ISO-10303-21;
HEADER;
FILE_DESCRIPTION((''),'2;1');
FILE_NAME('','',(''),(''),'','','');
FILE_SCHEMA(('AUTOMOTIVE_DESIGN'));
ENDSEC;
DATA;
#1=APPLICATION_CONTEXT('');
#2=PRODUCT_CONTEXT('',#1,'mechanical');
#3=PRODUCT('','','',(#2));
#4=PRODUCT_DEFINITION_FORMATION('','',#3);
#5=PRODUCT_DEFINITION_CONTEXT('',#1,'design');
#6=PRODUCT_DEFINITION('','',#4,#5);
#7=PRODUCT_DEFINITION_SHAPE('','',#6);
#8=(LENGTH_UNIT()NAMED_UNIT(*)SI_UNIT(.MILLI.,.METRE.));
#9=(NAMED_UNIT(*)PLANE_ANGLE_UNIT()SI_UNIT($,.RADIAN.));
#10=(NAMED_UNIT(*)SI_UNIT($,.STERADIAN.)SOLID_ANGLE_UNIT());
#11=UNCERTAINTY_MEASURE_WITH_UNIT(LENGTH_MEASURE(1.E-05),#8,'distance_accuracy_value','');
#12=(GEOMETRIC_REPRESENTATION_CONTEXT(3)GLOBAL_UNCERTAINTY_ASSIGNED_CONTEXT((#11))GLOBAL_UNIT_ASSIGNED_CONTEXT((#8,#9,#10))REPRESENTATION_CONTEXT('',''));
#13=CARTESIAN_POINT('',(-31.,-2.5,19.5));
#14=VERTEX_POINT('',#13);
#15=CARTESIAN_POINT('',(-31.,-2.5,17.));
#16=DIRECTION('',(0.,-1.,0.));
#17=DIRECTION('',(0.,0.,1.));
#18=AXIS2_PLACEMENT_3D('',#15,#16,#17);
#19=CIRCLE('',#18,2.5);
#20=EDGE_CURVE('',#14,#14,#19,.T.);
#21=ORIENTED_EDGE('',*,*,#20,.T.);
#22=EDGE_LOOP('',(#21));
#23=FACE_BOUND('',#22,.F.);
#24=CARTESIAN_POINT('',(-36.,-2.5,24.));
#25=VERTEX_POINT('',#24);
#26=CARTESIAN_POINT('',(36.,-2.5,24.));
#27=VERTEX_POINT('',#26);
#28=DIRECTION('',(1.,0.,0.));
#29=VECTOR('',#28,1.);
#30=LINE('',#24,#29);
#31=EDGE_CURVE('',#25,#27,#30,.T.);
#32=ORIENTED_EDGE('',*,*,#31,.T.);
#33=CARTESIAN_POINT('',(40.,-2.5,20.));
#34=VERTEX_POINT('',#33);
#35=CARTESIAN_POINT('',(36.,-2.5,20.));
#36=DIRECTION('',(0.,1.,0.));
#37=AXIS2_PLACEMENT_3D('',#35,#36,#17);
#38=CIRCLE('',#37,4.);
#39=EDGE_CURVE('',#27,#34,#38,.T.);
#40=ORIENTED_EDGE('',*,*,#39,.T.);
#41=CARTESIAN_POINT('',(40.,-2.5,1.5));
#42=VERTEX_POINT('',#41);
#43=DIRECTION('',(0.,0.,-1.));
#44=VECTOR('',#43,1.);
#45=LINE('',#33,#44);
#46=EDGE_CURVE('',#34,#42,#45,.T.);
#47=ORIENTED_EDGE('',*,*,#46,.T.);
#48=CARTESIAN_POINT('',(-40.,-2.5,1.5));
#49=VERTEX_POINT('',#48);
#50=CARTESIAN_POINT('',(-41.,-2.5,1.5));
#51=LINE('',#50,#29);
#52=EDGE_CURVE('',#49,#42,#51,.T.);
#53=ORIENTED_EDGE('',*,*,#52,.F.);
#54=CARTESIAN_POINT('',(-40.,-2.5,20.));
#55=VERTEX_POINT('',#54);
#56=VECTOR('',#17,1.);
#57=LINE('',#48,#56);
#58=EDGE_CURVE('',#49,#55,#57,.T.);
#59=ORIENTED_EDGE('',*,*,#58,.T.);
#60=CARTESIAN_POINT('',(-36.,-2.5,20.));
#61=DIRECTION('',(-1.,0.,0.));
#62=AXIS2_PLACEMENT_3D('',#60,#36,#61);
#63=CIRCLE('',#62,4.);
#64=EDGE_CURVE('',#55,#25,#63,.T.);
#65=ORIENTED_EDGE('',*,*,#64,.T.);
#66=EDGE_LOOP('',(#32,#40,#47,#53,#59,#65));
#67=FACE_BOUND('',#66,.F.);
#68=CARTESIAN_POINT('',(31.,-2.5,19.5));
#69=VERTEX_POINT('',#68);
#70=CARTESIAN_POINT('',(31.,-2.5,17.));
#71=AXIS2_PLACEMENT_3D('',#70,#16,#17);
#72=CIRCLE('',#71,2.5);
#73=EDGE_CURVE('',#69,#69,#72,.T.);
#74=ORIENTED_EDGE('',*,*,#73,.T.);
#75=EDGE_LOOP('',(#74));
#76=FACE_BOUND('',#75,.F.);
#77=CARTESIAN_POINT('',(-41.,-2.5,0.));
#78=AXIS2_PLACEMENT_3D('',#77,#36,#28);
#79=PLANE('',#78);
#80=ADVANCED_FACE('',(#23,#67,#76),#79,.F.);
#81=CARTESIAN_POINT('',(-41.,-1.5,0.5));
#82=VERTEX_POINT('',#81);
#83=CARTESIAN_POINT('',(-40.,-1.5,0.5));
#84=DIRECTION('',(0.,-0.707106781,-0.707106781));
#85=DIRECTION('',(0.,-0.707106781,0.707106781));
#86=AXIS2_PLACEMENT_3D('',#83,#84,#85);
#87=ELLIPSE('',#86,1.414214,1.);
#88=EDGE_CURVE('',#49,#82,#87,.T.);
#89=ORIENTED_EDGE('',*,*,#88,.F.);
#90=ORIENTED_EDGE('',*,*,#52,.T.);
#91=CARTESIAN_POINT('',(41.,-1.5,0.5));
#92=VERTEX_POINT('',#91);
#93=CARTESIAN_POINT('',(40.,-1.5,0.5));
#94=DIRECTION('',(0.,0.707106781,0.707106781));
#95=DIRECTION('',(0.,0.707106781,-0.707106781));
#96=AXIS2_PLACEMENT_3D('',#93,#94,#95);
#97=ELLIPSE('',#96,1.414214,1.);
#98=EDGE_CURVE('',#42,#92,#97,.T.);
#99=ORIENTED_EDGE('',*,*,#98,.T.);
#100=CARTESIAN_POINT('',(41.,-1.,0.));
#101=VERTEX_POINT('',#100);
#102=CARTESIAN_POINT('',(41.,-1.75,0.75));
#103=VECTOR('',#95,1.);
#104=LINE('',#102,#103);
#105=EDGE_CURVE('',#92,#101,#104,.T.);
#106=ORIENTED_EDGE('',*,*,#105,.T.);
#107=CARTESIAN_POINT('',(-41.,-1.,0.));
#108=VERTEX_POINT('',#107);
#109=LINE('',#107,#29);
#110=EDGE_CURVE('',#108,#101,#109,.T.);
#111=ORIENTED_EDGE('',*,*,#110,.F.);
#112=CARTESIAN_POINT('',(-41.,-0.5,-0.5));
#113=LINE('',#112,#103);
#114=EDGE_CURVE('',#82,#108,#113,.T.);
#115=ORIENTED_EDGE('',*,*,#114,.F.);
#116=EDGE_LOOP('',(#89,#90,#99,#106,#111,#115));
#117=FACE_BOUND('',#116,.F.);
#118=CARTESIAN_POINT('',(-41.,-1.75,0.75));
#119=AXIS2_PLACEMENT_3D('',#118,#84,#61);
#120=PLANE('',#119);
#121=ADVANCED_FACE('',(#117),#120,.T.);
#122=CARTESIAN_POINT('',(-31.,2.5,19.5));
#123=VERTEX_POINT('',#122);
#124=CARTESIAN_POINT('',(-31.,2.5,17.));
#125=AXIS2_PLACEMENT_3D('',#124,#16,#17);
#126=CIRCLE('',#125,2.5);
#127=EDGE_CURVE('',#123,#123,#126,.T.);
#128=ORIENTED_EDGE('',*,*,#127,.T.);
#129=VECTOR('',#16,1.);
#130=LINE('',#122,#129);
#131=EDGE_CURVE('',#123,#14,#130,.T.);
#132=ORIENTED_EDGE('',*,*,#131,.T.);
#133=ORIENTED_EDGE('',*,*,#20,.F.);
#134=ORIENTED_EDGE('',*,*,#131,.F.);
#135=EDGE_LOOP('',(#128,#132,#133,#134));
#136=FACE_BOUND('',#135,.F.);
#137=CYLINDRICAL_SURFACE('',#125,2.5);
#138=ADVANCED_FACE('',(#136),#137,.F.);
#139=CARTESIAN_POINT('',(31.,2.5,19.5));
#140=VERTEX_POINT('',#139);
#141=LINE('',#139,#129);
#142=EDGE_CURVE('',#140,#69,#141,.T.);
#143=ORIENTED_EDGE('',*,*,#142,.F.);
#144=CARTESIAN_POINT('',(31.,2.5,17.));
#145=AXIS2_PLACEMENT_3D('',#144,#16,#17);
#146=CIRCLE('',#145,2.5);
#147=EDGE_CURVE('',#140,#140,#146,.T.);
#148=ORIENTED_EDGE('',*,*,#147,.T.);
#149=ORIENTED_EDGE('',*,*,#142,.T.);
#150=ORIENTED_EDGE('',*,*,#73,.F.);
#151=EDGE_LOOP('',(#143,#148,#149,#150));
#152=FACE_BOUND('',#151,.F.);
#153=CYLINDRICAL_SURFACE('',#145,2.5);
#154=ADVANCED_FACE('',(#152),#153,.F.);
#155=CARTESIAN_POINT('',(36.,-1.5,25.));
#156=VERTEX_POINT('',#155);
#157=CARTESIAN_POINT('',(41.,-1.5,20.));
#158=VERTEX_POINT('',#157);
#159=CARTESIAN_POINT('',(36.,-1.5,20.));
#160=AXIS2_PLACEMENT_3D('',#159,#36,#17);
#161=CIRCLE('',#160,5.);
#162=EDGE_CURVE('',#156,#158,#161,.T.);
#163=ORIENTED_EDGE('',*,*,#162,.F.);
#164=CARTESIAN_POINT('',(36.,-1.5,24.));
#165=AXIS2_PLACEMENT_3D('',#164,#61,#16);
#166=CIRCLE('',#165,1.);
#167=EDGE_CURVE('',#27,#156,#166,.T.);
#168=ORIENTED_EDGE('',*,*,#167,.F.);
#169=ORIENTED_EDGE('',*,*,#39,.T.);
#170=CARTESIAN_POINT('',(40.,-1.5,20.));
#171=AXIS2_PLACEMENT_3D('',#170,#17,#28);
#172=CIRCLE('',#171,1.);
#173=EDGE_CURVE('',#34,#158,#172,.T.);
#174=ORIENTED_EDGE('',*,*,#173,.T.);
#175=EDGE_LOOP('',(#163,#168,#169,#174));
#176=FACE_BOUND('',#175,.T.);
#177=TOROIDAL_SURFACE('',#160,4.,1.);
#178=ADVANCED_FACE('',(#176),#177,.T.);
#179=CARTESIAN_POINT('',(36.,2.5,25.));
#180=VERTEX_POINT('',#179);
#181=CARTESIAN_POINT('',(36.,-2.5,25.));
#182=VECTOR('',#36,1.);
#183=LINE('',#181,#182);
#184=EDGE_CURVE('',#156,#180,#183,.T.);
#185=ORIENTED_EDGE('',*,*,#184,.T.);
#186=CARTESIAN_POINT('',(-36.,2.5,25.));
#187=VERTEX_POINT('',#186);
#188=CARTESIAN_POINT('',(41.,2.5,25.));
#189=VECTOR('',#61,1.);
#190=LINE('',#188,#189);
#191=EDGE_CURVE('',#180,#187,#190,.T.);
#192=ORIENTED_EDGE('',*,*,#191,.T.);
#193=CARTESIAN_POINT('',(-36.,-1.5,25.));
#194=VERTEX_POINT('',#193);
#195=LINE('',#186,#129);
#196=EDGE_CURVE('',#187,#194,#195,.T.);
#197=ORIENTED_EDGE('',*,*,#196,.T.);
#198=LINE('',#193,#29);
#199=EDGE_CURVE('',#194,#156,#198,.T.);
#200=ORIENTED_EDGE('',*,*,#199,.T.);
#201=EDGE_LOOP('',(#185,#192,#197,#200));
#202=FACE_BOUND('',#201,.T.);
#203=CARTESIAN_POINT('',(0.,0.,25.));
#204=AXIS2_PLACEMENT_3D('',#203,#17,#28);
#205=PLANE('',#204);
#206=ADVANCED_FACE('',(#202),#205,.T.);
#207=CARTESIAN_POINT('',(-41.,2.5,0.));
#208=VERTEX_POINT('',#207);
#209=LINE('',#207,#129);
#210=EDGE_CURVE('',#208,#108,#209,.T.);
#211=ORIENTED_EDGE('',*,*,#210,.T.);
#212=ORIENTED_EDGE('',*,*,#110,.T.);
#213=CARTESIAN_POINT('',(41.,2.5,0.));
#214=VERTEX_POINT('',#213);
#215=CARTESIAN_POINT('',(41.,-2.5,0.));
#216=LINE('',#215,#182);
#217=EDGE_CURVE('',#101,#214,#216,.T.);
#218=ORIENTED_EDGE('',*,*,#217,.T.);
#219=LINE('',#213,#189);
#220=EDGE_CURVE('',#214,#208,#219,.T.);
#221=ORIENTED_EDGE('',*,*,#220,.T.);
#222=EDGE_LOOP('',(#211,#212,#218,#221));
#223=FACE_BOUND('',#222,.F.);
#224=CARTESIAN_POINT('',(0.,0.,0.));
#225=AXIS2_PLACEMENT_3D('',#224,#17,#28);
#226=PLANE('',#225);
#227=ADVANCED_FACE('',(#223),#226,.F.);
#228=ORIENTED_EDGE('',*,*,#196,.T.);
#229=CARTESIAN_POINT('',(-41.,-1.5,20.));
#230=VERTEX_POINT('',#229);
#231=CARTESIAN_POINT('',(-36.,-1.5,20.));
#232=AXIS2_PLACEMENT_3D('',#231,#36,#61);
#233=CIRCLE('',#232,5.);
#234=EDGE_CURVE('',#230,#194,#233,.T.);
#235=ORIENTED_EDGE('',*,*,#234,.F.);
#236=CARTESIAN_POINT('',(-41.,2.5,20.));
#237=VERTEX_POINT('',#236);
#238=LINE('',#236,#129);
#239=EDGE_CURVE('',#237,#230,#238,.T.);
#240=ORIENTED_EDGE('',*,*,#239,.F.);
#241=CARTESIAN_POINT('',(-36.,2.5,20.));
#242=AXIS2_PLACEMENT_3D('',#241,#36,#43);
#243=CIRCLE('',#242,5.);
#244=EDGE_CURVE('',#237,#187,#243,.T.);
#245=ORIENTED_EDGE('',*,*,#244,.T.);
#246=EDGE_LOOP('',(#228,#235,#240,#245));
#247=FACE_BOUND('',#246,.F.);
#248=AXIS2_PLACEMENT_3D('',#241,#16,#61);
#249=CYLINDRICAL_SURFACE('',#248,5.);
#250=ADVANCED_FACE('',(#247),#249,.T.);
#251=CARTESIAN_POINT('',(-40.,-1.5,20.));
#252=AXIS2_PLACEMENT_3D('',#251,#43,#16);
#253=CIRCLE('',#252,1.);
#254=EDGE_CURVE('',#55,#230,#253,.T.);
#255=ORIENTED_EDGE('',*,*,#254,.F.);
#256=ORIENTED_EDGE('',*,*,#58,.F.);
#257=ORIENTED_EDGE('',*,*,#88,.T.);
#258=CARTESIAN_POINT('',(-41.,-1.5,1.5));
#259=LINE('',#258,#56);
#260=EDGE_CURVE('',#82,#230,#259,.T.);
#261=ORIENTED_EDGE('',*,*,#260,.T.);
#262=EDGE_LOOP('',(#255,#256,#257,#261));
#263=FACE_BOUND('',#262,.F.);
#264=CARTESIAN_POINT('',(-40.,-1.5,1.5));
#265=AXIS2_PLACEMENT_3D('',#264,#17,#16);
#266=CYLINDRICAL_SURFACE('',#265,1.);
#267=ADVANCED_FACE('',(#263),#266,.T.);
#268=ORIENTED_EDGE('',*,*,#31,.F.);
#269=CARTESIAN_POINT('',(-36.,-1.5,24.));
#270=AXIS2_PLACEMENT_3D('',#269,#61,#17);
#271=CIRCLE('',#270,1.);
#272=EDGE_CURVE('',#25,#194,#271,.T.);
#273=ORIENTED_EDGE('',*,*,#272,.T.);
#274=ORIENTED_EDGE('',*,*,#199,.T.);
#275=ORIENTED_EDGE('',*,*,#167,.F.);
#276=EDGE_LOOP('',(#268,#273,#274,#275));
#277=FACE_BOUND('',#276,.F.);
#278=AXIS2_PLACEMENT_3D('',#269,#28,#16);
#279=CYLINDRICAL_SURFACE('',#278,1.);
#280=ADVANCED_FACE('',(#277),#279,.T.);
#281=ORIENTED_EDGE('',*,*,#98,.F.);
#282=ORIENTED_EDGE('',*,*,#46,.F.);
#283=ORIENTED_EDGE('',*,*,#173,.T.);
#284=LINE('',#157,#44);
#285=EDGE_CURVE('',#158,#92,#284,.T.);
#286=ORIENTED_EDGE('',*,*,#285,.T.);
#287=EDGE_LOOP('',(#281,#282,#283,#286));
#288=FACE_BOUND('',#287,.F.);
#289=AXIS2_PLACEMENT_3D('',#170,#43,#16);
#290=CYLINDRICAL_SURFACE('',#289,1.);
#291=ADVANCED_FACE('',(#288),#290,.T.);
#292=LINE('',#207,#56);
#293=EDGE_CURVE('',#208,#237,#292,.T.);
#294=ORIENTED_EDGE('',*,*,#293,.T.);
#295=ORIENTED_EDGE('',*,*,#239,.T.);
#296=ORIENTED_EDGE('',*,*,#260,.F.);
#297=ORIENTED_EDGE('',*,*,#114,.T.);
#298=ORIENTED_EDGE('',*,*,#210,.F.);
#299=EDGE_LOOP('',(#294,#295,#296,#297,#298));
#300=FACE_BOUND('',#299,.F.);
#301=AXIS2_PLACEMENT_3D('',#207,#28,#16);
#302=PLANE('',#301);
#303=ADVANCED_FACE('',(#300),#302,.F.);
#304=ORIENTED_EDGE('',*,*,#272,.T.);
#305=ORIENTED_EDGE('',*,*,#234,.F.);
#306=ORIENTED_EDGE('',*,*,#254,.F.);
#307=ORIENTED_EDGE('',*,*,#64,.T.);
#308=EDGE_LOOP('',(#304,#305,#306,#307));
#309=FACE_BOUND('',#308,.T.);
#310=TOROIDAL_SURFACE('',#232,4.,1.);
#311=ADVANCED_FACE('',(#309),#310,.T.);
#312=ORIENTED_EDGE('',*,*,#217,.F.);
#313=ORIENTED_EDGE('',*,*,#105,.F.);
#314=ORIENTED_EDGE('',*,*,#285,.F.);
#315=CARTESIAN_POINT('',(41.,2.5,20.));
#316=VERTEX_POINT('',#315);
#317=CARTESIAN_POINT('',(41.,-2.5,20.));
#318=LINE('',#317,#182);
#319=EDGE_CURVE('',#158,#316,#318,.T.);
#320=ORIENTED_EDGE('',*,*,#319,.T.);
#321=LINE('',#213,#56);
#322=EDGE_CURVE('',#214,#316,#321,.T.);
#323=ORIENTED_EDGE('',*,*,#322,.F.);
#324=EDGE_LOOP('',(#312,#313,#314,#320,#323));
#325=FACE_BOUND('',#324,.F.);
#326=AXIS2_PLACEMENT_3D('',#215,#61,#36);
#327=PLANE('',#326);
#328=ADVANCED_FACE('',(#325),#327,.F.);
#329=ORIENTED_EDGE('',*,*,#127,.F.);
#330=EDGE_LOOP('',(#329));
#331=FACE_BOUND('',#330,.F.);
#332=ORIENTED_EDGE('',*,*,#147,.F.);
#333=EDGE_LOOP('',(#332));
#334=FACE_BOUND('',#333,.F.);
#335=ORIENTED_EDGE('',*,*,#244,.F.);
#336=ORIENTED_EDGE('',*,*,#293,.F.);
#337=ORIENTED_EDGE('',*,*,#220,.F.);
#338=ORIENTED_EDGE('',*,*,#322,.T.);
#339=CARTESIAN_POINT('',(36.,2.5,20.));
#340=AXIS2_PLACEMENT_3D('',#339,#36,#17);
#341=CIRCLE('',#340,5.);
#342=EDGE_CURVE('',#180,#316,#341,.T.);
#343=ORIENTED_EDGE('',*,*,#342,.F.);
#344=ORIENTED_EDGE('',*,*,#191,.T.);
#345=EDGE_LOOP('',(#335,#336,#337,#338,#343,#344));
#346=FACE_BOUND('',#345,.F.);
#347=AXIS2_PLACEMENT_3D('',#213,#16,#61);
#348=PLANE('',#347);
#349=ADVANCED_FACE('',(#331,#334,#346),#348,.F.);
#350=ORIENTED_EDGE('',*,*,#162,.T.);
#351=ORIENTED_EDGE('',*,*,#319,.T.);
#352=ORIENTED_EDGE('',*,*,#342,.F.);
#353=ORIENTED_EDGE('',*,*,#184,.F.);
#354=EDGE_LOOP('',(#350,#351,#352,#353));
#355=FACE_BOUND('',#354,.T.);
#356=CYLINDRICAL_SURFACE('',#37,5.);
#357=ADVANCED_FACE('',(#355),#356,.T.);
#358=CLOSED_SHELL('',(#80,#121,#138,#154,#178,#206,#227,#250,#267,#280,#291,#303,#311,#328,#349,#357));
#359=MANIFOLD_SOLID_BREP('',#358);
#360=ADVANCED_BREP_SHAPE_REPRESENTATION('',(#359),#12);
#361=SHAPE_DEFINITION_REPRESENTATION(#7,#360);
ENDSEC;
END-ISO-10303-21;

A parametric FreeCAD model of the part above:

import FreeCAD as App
import Part
import Sketcher

V = App.Vector
Q = App.Units.Quantity


def edges_at(feature, points):
    """Names of the edges that pass closest to the given points."""
    edges = feature.Shape.Edges
    near = lambda p: min(range(len(edges)), key=lambda i: edges[i].distToShape(Part.Vertex(*p))[0])
    return sorted({f"Edge{near(p) + 1}" for p in points})

doc = App.newDocument("Part")
body = doc.addObject("PartDesign::Body", "Body")

sketch1 = body.newObject("Sketcher::SketchObject", "Sketch")
sketch1.AttachmentSupport = (doc.getObject("XY_Plane"), [""])
sketch1.MapMode = "FlatFace"
sketch1.addGeometry(Part.LineSegment(V(-41, 2, 0), V(-41, -2, 0)), False)
sketch1.addGeometry(Part.LineSegment(V(-41, -2, 0), V(41, -2, 0)), False)
sketch1.addGeometry(Part.LineSegment(V(41, -2, 0), V(41, 2, 0)), False)
sketch1.addGeometry(Part.LineSegment(V(41, 2, 0), V(-41, 2, 0)), False)
sketch1.addConstraint(Sketcher.Constraint("Coincident", 0, 2, 1, 1))
sketch1.addConstraint(Sketcher.Constraint("Coincident", 1, 2, 2, 1))
sketch1.addConstraint(Sketcher.Constraint("Coincident", 2, 2, 3, 1))
sketch1.addConstraint(Sketcher.Constraint("Coincident", 3, 2, 0, 1))
sketch1.addConstraint(Sketcher.Constraint("Vertical", 0))
sketch1.addConstraint(Sketcher.Constraint("Horizontal", 1))
sketch1.addConstraint(Sketcher.Constraint("Vertical", 2))
sketch1.addConstraint(Sketcher.Constraint("Horizontal", 3))
sketch1.addConstraint(Sketcher.Constraint("Symmetric", 0, 2, 2, 2, -1, 1))
sketch1.addConstraint(Sketcher.Constraint("DistanceX", 1, 1, 1, 2, Q("82 mm")))
sketch1.addConstraint(Sketcher.Constraint("DistanceY", 0, 2, 0, 1, Q("5 mm")))
pad1 = body.newObject("PartDesign::Pad", "Pad")
pad1.Profile = sketch1
pad1.Length = 25
doc.recompute()

chamfer = body.newObject("PartDesign::Chamfer", "Chamfer")
chamfer.Base = (pad1, edges_at(pad1, [(0, -2.5, 0)]))
chamfer.Size = 1.5
doc.recompute()

fillet = body.newObject("PartDesign::Fillet", "Fillet")
fillet.Base = (chamfer, edges_at(chamfer, [(-41, 0, 25), (41, 0, 25)]))
fillet.Radius = 5

sketch2 = body.newObject("Sketcher::SketchObject", "Sketch001")
sketch2.AttachmentSupport = (doc.getObject("XZ_Plane"), [""])
sketch2.MapMode = "FlatFace"
sketch2.AttachmentOffset = App.Placement(V(0, 0, -2.5), App.Rotation())
sketch2.addGeometry(Part.Circle(V(-31, 17, 0), V(0, 0, 1), 2.5), False)
sketch2.addGeometry(Part.Circle(V(31, 17, 0), V(0, 0, 1), 2.5), False)
sketch2.addConstraint(Sketcher.Constraint("Equal", 0, 1))
sketch2.addConstraint(Sketcher.Constraint("Symmetric", 0, 3, 1, 3, -2))
sketch2.addConstraint(Sketcher.Constraint("Diameter", 0, Q("5 mm")))
sketch2.addConstraint(Sketcher.Constraint("DistanceX", 0, 3, -1, 1, Q("31 mm")))
sketch2.addConstraint(Sketcher.Constraint("DistanceY", -1, 1, 0, 3, Q("17 mm")))
doc.recompute()
hole = body.newObject("PartDesign::Hole", "Hole")
hole.Profile = sketch2
hole.ThreadType = "None"
hole.Diameter = 5
hole.DepthType = "ThroughAll"
hole.Reversed = True
doc.recompute()

fillet2 = body.newObject("PartDesign::Fillet", "Fillet001")
fillet2.Base = (hole, edges_at(hole, [
    (-39.535, -2.5, 23.535),
    (0, -2.5, 25),
    (39.535, -2.5, 23.535),
    (41, -2.5, 10.75),
    (-41, -2.5, 10.75),
]))
fillet2.Radius = 1

doc.recompute()
